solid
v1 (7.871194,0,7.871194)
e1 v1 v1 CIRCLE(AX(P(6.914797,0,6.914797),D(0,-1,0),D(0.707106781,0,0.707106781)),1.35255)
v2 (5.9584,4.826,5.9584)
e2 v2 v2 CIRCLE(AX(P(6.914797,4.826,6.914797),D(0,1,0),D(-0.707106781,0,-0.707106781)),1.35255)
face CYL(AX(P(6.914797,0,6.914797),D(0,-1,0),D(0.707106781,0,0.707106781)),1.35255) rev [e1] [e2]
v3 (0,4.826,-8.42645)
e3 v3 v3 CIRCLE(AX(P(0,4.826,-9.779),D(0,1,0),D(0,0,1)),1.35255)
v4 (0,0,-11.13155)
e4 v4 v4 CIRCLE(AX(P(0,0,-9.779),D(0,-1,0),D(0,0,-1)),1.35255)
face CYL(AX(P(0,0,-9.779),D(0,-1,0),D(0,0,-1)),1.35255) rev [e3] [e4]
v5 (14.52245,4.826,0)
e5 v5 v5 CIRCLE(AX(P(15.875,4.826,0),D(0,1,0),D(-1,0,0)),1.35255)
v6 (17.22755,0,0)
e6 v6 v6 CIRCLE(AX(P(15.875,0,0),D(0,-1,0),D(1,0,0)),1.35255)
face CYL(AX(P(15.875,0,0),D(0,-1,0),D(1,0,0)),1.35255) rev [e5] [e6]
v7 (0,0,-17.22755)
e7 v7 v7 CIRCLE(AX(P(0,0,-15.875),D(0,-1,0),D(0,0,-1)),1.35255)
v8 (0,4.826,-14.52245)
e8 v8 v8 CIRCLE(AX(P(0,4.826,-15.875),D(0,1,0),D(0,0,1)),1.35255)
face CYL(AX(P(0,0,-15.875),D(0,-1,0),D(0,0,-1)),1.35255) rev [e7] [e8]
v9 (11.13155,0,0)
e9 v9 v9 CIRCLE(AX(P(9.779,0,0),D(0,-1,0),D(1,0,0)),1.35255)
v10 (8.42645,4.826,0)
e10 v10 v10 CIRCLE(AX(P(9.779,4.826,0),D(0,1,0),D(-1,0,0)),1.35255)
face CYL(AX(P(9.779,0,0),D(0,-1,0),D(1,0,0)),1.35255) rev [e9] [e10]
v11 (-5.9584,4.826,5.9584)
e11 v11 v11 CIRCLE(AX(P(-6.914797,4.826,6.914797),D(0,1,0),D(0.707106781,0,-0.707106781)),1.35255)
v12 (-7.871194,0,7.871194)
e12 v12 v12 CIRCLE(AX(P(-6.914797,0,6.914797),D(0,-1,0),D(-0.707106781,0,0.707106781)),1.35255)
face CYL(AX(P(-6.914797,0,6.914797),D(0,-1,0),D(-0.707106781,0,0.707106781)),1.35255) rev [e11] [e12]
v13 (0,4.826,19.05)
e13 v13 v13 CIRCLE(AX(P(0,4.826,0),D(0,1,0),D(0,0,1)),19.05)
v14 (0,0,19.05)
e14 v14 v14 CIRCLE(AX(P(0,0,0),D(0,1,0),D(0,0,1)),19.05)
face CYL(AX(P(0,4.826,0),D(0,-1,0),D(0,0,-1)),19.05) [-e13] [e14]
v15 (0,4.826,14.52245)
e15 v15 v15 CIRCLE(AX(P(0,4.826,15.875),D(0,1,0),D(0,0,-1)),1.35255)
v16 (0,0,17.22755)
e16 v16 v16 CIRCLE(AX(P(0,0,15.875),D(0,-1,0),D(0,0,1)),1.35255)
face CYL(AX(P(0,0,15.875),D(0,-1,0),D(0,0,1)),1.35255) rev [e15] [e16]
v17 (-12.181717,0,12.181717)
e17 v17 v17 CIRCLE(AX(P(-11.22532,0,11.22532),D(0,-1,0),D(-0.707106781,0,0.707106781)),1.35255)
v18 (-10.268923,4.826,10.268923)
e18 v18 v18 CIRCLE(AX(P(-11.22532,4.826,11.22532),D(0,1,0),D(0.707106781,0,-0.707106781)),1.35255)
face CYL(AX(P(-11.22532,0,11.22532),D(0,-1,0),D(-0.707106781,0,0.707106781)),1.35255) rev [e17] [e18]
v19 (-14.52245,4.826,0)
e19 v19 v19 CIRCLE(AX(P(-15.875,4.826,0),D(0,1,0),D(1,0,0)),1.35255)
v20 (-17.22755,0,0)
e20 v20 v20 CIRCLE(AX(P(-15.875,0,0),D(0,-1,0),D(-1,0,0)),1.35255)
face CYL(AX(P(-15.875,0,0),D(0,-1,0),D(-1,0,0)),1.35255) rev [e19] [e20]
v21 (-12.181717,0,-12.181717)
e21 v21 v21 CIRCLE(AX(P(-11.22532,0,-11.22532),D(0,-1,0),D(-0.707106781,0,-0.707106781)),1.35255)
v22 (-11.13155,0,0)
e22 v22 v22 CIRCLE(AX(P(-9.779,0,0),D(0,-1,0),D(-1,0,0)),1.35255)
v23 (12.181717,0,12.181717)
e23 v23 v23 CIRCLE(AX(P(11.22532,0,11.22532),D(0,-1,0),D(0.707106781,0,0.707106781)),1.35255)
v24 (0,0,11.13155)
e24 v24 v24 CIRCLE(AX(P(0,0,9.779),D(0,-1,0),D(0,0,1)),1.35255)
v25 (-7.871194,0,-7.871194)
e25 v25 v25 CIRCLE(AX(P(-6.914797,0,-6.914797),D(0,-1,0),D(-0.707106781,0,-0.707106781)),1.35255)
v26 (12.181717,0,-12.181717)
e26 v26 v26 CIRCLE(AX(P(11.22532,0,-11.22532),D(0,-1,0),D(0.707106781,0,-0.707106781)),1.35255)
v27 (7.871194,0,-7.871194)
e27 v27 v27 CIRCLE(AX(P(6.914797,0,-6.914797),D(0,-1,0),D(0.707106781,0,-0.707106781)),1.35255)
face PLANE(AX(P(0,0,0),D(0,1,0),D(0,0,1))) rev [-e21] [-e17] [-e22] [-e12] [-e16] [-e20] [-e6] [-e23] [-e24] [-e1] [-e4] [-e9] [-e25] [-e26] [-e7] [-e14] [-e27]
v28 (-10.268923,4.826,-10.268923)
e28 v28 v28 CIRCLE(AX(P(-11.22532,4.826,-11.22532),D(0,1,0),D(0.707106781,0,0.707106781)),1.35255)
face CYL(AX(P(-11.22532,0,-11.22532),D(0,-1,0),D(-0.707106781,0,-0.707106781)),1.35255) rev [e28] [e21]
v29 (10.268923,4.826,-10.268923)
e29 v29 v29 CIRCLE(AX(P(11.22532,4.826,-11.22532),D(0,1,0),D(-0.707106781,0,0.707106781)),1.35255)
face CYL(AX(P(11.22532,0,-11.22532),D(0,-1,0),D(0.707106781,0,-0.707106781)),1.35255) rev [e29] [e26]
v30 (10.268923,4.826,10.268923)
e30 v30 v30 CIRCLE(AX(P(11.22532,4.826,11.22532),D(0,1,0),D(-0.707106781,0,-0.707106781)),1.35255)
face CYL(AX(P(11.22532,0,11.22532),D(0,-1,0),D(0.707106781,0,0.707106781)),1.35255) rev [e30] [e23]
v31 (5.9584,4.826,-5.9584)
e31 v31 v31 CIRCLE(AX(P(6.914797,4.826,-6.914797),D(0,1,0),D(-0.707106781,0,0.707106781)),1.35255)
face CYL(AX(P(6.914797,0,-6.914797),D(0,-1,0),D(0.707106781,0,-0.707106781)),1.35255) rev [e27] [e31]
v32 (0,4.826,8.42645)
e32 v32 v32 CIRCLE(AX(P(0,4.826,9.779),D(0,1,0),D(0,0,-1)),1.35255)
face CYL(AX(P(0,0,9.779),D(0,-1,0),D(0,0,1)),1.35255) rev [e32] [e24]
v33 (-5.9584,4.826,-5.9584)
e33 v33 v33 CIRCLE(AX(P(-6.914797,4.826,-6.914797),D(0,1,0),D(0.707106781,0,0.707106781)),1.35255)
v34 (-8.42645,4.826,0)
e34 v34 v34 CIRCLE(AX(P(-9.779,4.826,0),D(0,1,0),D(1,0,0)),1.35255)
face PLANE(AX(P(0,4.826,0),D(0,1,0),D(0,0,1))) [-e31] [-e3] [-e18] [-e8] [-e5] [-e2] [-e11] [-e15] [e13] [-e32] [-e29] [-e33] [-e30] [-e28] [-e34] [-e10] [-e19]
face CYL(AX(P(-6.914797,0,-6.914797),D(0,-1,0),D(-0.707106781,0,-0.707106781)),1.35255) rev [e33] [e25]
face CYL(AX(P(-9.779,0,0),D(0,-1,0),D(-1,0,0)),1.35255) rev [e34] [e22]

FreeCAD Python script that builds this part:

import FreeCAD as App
import Part
import Sketcher
Q = App.Units.Quantity

doc = App.newDocument("Part")
body = doc.addObject("PartDesign::Body", "Body")

# Sketch on XZ plane
sketch1 = doc.addObject("Sketcher::SketchObject", "Sketch")
body.addObject(sketch1)
sketch1.AttachmentSupport = (doc.XZ_Plane, [""])
sketch1.MapMode = "FlatFace"
sketch1.addGeometry(Part.Circle(App.Vector(0, 0, 0), App.Vector(0, 0, 1), 19), False)
sketch1.addConstraint(Sketcher.Constraint("Coincident", 0, 3, -1, 1))
sketch1.addConstraint(Sketcher.Constraint("Diameter", 0, Q("1.5 in")))
pad1 = doc.addObject("PartDesign::Pad", "Pad")
body.addObject(pad1)
pad1.Profile = sketch1
pad1.Length = Q("0.19 in")
pad1.Reversed = True

# Sketch on YZ plane
sketch2 = doc.addObject("Sketcher::SketchObject", "Sketch001")
body.addObject(sketch2)
sketch2.AttachmentSupport = (doc.YZ_Plane, [""])
sketch2.MapMode = "FlatFace"
sketch2.addGeometry(Part.LineSegment(App.Vector(5.9, -15.9, 0), App.Vector(0, -15.9, 0)), False)
sketch2.addGeometry(Part.LineSegment(App.Vector(0, -15.9, 0), App.Vector(0, -17.2, 0)), False)
sketch2.addGeometry(Part.LineSegment(App.Vector(0, -17.2, 0), App.Vector(5.1, -17.2, 0)), False)
sketch2.addGeometry(Part.LineSegment(App.Vector(5.1, -17.2, 0), App.Vector(5.9, -15.9, 0)), False)
sketch2.addGeometry(Part.LineSegment(App.Vector(0, -15.9, 0), App.Vector(5.9, -15.9, 0)), True)  # axis
sketch2.addConstraint(Sketcher.Constraint("Coincident", 0, 2, 1, 1))
sketch2.addConstraint(Sketcher.Constraint("Coincident", 1, 2, 2, 1))
sketch2.addConstraint(Sketcher.Constraint("Coincident", 2, 2, 3, 1))
sketch2.addConstraint(Sketcher.Constraint("Coincident", 3, 2, 0, 1))
sketch2.addConstraint(Sketcher.Constraint("Horizontal", 0))
sketch2.addConstraint(Sketcher.Constraint("Vertical", 1))
sketch2.addConstraint(Sketcher.Constraint("Horizontal", 2))
sketch2.addConstraint(Sketcher.Constraint("Horizontal", 4))
sketch2.addConstraint(Sketcher.Constraint("Coincident", 4, 1, 0, 2))
sketch2.addConstraint(Sketcher.Constraint("PointOnObject", 0, 2, -2))
sketch2.addConstraint(Sketcher.Constraint("Equal", 0, 4))
sketch2.addConstraint(Sketcher.Constraint("DistanceX", 2, 1, 2, 2, Q("0.2 in")))
sketch2.addConstraint(Sketcher.Constraint("Angle", 3, Q("59 deg")))
sketch2.addConstraint(Sketcher.Constraint("DistanceY", 0, 2, -1, 1, Q("0.625 in")))
sketch2.addConstraint(Sketcher.Constraint("DistanceY", 1, 2, 1, 1, Q("1.35255 mm")))
groove = doc.addObject("PartDesign::Groove", "Groove")
body.addObject(groove)
groove.Profile = sketch2
groove.ReferenceAxis = (sketch2, ["Axis0"])
groove.Angle = 360
doc.recompute()

linearpattern = doc.addObject("PartDesign::LinearPattern", "LinearPattern")
body.addObject(linearpattern)
linearpattern.Originals = [groove]
linearpattern.Direction = (doc.Z_Axis, [""])
linearpattern.Mode = "offset"
linearpattern.Offset = Q("0.24 in")
linearpattern.Occurrences = 2
body.Tip = linearpattern
doc.recompute()

polarpattern = doc.addObject("PartDesign::PolarPattern", "PolarPattern")
body.addObject(polarpattern)
polarpattern.Originals = [groove]
polarpattern.Axis = (doc.Y_Axis, [""])
polarpattern.Angle = 360
polarpattern.Occurrences = 8
body.Tip = polarpattern

# Sketch on an angled plane
sketch3 = doc.addObject("Sketcher::SketchObject", "Sketch002")
body.addObject(sketch3)
sketch3.Placement = App.Placement(App.Vector(-6.914797, 0, -6.914797), App.Rotation(App.Vector(-0.707106781, 0, -0.707106781), App.Vector(0, 0.999999999, 0), App.Vector(0.707106781, 0, -0.707106781), "ZXY"))
sketch3.addGeometry(Part.LineSegment(App.Vector(0, 5.9, 0), App.Vector(0, 0, 0)), False)
sketch3.addGeometry(Part.LineSegment(App.Vector(0, 0, 0), App.Vector(1.4, 0, 0)), False)
sketch3.addGeometry(Part.LineSegment(App.Vector(1.4, 0, 0), App.Vector(1.4, 5.1, 0)), False)
sketch3.addGeometry(Part.LineSegment(App.Vector(1.4, 5.1, 0), App.Vector(0, 5.9, 0)), False)
sketch3.addConstraint(Sketcher.Constraint("Coincident", 0, 2, 1, 1))
sketch3.addConstraint(Sketcher.Constraint("Coincident", 1, 2, 2, 1))
sketch3.addConstraint(Sketcher.Constraint("Coincident", 2, 2, 3, 1))
sketch3.addConstraint(Sketcher.Constraint("Coincident", 3, 2, 0, 1))
sketch3.addConstraint(Sketcher.Constraint("Vertical", 0))
sketch3.addConstraint(Sketcher.Constraint("Horizontal", 1))
sketch3.addConstraint(Sketcher.Constraint("Vertical", 2))
sketch3.addConstraint(Sketcher.Constraint("Coincident", 0, 2, -1, 1))
sketch3.addConstraint(Sketcher.Constraint("DistanceY", 2, 1, 2, 2, Q("0.2 in")))
sketch3.addConstraint(Sketcher.Constraint("Angle", 3, Q("149 deg")))
sketch3.addConstraint(Sketcher.Constraint("DistanceX", 1, 1, 1, 2, Q("1.35255 mm")))
groove2 = doc.addObject("PartDesign::Groove", "Groove001")
body.addObject(groove2)
groove2.Profile = sketch3
groove2.ReferenceAxis = (sketch3, ["V_Axis"])
groove2.Angle = 360

# Sketch on XY plane
sketch4 = doc.addObject("Sketcher::SketchObject", "Sketch003")
body.addObject(sketch4)
sketch4.AttachmentSupport = (doc.XY_Plane, [""])
sketch4.MapMode = "FlatFace"
sketch4.addGeometry(Part.LineSegment(App.Vector(-9.8, 5.9, 0), App.Vector(-9.8, 0, 0)), False)
sketch4.addGeometry(Part.LineSegment(App.Vector(-9.8, 0, 0), App.Vector(-11.1, 0, 0)), False)
sketch4.addGeometry(Part.LineSegment(App.Vector(-11.1, 0, 0), App.Vector(-11.1, 5.1, 0)), False)
sketch4.addGeometry(Part.LineSegment(App.Vector(-11.1, 5.1, 0), App.Vector(-9.8, 5.9, 0)), False)
sketch4.addGeometry(Part.LineSegment(App.Vector(-9.8, 0, 0), App.Vector(-9.8, 5.9, 0)), True)  # axis
sketch4.addConstraint(Sketcher.Constraint("Coincident", 0, 2, 1, 1))
sketch4.addConstraint(Sketcher.Constraint("Coincident", 1, 2, 2, 1))
sketch4.addConstraint(Sketcher.Constraint("Coincident", 2, 2, 3, 1))
sketch4.addConstraint(Sketcher.Constraint("Coincident", 3, 2, 0, 1))
sketch4.addConstraint(Sketcher.Constraint("Vertical", 0))
sketch4.addConstraint(Sketcher.Constraint("Horizontal", 1))
sketch4.addConstraint(Sketcher.Constraint("Vertical", 2))
sketch4.addConstraint(Sketcher.Constraint("Vertical", 4))
sketch4.addConstraint(Sketcher.Constraint("Coincident", 4, 1, 0, 2))
sketch4.addConstraint(Sketcher.Constraint("PointOnObject", 0, 2, -1))
sketch4.addConstraint(Sketcher.Constraint("Equal", 0, 4))
sketch4.addConstraint(Sketcher.Constraint("DistanceY", 2, 1, 2, 2, Q("0.2 in")))
sketch4.addConstraint(Sketcher.Constraint("Angle", 3, Q("31 deg")))
sketch4.addConstraint(Sketcher.Constraint("DistanceX", 0, 2, -1, 1, Q("0.385 in")))
sketch4.addConstraint(Sketcher.Constraint("DistanceX", 1, 2, 1, 1, Q("1.35255 mm")))
groove3 = doc.addObject("PartDesign::Groove", "Groove002")
body.addObject(groove3)
groove3.Profile = sketch4
groove3.ReferenceAxis = (sketch4, ["Axis0"])
groove3.Angle = 360

# Sketch on an angled plane
sketch5 = doc.addObject("Sketcher::SketchObject", "Sketch004")
body.addObject(sketch5)
sketch5.Placement = App.Placement(App.Vector(-6.914797, 0, 6.914797), App.Rotation(App.Vector(-0.707106781, 0, 0.707106781), App.Vector(0, 0.999999999, 0), App.Vector(-0.707106781, 0, -0.707106781), "ZXY"))
sketch5.addGeometry(Part.LineSegment(App.Vector(0, 5.9, 0), App.Vector(0, 0, 0)), False)
sketch5.addGeometry(Part.LineSegment(App.Vector(0, 0, 0), App.Vector(1.4, 0, 0)), False)
sketch5.addGeometry(Part.LineSegment(App.Vector(1.4, 0, 0), App.Vector(1.4, 5.1, 0)), False)
sketch5.addGeometry(Part.LineSegment(App.Vector(1.4, 5.1, 0), App.Vector(0, 5.9, 0)), False)
sketch5.addConstraint(Sketcher.Constraint("Coincident", 0, 2, 1, 1))
sketch5.addConstraint(Sketcher.Constraint("Coincident", 1, 2, 2, 1))
sketch5.addConstraint(Sketcher.Constraint("Coincident", 2, 2, 3, 1))
sketch5.addConstraint(Sketcher.Constraint("Coincident", 3, 2, 0, 1))
sketch5.addConstraint(Sketcher.Constraint("Vertical", 0))
sketch5.addConstraint(Sketcher.Constraint("Horizontal", 1))
sketch5.addConstraint(Sketcher.Constraint("Vertical", 2))
sketch5.addConstraint(Sketcher.Constraint("Coincident", 0, 2, -1, 1))
sketch5.addConstraint(Sketcher.Constraint("DistanceY", 2, 1, 2, 2, Q("0.2 in")))
sketch5.addConstraint(Sketcher.Constraint("Angle", 3, Q("149 deg")))
sketch5.addConstraint(Sketcher.Constraint("DistanceX", 1, 1, 1, 2, Q("1.35255 mm")))
groove4 = doc.addObject("PartDesign::Groove", "Groove003")
body.addObject(groove4)
groove4.Profile = sketch5
groove4.ReferenceAxis = (sketch5, ["V_Axis"])
groove4.Angle = 360

# Sketch on YZ plane
sketch6 = doc.addObject("Sketcher::SketchObject", "Sketch005")
body.addObject(sketch6)
sketch6.AttachmentSupport = (doc.YZ_Plane, [""])
sketch6.MapMode = "FlatFace"
sketch6.addGeometry(Part.LineSegment(App.Vector(5.9, 9.8, 0), App.Vector(0, 9.8, 0)), False)
sketch6.addGeometry(Part.LineSegment(App.Vector(0, 9.8, 0), App.Vector(0, 11.1, 0)), False)
sketch6.addGeometry(Part.LineSegment(App.Vector(0, 11.1, 0), App.Vector(5.1, 11.1, 0)), False)
sketch6.addGeometry(Part.LineSegment(App.Vector(5.1, 11.1, 0), App.Vector(5.9, 9.8, 0)), False)
sketch6.addGeometry(Part.LineSegment(App.Vector(0, 9.8, 0), App.Vector(5.9, 9.8, 0)), True)  # axis
sketch6.addConstraint(Sketcher.Constraint("Coincident", 0, 2, 1, 1))
sketch6.addConstraint(Sketcher.Constraint("Coincident", 1, 2, 2, 1))
sketch6.addConstraint(Sketcher.Constraint("Coincident", 2, 2, 3, 1))
sketch6.addConstraint(Sketcher.Constraint("Coincident", 3, 2, 0, 1))
sketch6.addConstraint(Sketcher.Constraint("Horizontal", 0))
sketch6.addConstraint(Sketcher.Constraint("Vertical", 1))
sketch6.addConstraint(Sketcher.Constraint("Horizontal", 2))
sketch6.addConstraint(Sketcher.Constraint("Horizontal", 4))
sketch6.addConstraint(Sketcher.Constraint("Coincident", 4, 1, 0, 2))
sketch6.addConstraint(Sketcher.Constraint("PointOnObject", 0, 2, -2))
sketch6.addConstraint(Sketcher.Constraint("Equal", 0, 4))
sketch6.addConstraint(Sketcher.Constraint("DistanceX", 2, 1, 2, 2, Q("0.2 in")))
sketch6.addConstraint(Sketcher.Constraint("Angle", 3, Q("-59 deg")))
sketch6.addConstraint(Sketcher.Constraint("DistanceY", -1, 1, 0, 2, Q("0.385 in")))
sketch6.addConstraint(Sketcher.Constraint("DistanceY", 1, 1, 1, 2, Q("1.35255 mm")))
groove5 = doc.addObject("PartDesign::Groove", "Groove004")
body.addObject(groove5)
groove5.Profile = sketch6
groove5.ReferenceAxis = (sketch6, ["Axis0"])
groove5.Angle = 360

# Sketch on an angled plane
sketch7 = doc.addObject("Sketcher::SketchObject", "Sketch006")
body.addObject(sketch7)
sketch7.Placement = App.Placement(App.Vector(6.914797, 0, 6.914797), App.Rotation(App.Vector(0.707106781, 0, 0.707106781), App.Vector(0, 0.999999999, 0), App.Vector(-0.707106781, 0, 0.707106781), "ZXY"))
sketch7.addGeometry(Part.LineSegment(App.Vector(0, 5.9, 0), App.Vector(0, 0, 0)), False)
sketch7.addGeometry(Part.LineSegment(App.Vector(0, 0, 0), App.Vector(1.4, 0, 0)), False)
sketch7.addGeometry(Part.LineSegment(App.Vector(1.4, 0, 0), App.Vector(1.4, 5.1, 0)), False)
sketch7.addGeometry(Part.LineSegment(App.Vector(1.4, 5.1, 0), App.Vector(0, 5.9, 0)), False)
sketch7.addConstraint(Sketcher.Constraint("Coincident", 0, 2, 1, 1))
sketch7.addConstraint(Sketcher.Constraint("Coincident", 1, 2, 2, 1))
sketch7.addConstraint(Sketcher.Constraint("Coincident", 2, 2, 3, 1))
sketch7.addConstraint(Sketcher.Constraint("Coincident", 3, 2, 0, 1))
sketch7.addConstraint(Sketcher.Constraint("Vertical", 0))
sketch7.addConstraint(Sketcher.Constraint("Horizontal", 1))
sketch7.addConstraint(Sketcher.Constraint("Vertical", 2))
sketch7.addConstraint(Sketcher.Constraint("Coincident", 0, 2, -1, 1))
sketch7.addConstraint(Sketcher.Constraint("DistanceY", 2, 1, 2, 2, Q("0.2 in")))
sketch7.addConstraint(Sketcher.Constraint("Angle", 3, Q("149 deg")))
sketch7.addConstraint(Sketcher.Constraint("DistanceX", 1, 1, 1, 2, Q("1.35255 mm")))
groove6 = doc.addObject("PartDesign::Groove", "Groove005")
body.addObject(groove6)
groove6.Profile = sketch7
groove6.ReferenceAxis = (sketch7, ["V_Axis"])
groove6.Angle = 360

# Sketch on XY plane
sketch8 = doc.addObject("Sketcher::SketchObject", "Sketch007")
body.addObject(sketch8)
sketch8.AttachmentSupport = (doc.XY_Plane, [""])
sketch8.MapMode = "FlatFace"
sketch8.addGeometry(Part.LineSegment(App.Vector(9.8, 5.9, 0), App.Vector(9.8, 0, 0)), False)
sketch8.addGeometry(Part.LineSegment(App.Vector(9.8, 0, 0), App.Vector(11.1, 0, 0)), False)
sketch8.addGeometry(Part.LineSegment(App.Vector(11.1, 0, 0), App.Vector(11.1, 5.1, 0)), False)
sketch8.addGeometry(Part.LineSegment(App.Vector(11.1, 5.1, 0), App.Vector(9.8, 5.9, 0)), False)
sketch8.addGeometry(Part.LineSegment(App.Vector(9.8, 0, 0), App.Vector(9.8, 5.9, 0)), True)  # axis
sketch8.addConstraint(Sketcher.Constraint("Coincident", 0, 2, 1, 1))
sketch8.addConstraint(Sketcher.Constraint("Coincident", 1, 2, 2, 1))
sketch8.addConstraint(Sketcher.Constraint("Coincident", 2, 2, 3, 1))
sketch8.addConstraint(Sketcher.Constraint("Coincident", 3, 2, 0, 1))
sketch8.addConstraint(Sketcher.Constraint("Vertical", 0))
sketch8.addConstraint(Sketcher.Constraint("Horizontal", 1))
sketch8.addConstraint(Sketcher.Constraint("Vertical", 2))
sketch8.addConstraint(Sketcher.Constraint("Vertical", 4))
sketch8.addConstraint(Sketcher.Constraint("Coincident", 4, 1, 0, 2))
sketch8.addConstraint(Sketcher.Constraint("PointOnObject", 0, 2, -1))
sketch8.addConstraint(Sketcher.Constraint("Equal", 0, 4))
sketch8.addConstraint(Sketcher.Constraint("DistanceY", 2, 1, 2, 2, Q("0.2 in")))
sketch8.addConstraint(Sketcher.Constraint("Angle", 3, Q("149 deg")))
sketch8.addConstraint(Sketcher.Constraint("DistanceX", -1, 1, 0, 2, Q("0.385 in")))
sketch8.addConstraint(Sketcher.Constraint("DistanceX", 1, 1, 1, 2, Q("1.35255 mm")))
groove7 = doc.addObject("PartDesign::Groove", "Groove006")
body.addObject(groove7)
groove7.Profile = sketch8
groove7.ReferenceAxis = (sketch8, ["Axis0"])
groove7.Angle = 360

# Sketch on an angled plane
sketch9 = doc.addObject("Sketcher::SketchObject", "Sketch008")
body.addObject(sketch9)
sketch9.Placement = App.Placement(App.Vector(6.914797, 0, -6.914797), App.Rotation(App.Vector(0.707106781, 0, -0.707106781), App.Vector(0, 0.999999999, 0), App.Vector(0.707106781, 0, 0.707106781), "ZXY"))
sketch9.addGeometry(Part.LineSegment(App.Vector(0, 5.9, 0), App.Vector(0, 0, 0)), False)
sketch9.addGeometry(Part.LineSegment(App.Vector(0, 0, 0), App.Vector(1.4, 0, 0)), False)
sketch9.addGeometry(Part.LineSegment(App.Vector(1.4, 0, 0), App.Vector(1.4, 5.1, 0)), False)
sketch9.addGeometry(Part.LineSegment(App.Vector(1.4, 5.1, 0), App.Vector(0, 5.9, 0)), False)
sketch9.addConstraint(Sketcher.Constraint("Coincident", 0, 2, 1, 1))
sketch9.addConstraint(Sketcher.Constraint("Coincident", 1, 2, 2, 1))
sketch9.addConstraint(Sketcher.Constraint("Coincident", 2, 2, 3, 1))
sketch9.addConstraint(Sketcher.Constraint("Coincident", 3, 2, 0, 1))
sketch9.addConstraint(Sketcher.Constraint("Vertical", 0))
sketch9.addConstraint(Sketcher.Constraint("Horizontal", 1))
sketch9.addConstraint(Sketcher.Constraint("Vertical", 2))
sketch9.addConstraint(Sketcher.Constraint("Coincident", 0, 2, -1, 1))
sketch9.addConstraint(Sketcher.Constraint("DistanceY", 2, 1, 2, 2, Q("0.2 in")))
sketch9.addConstraint(Sketcher.Constraint("Angle", 3, Q("149 deg")))
sketch9.addConstraint(Sketcher.Constraint("DistanceX", 1, 1, 1, 2, Q("1.35255 mm")))
groove8 = doc.addObject("PartDesign::Groove", "Groove007")
body.addObject(groove8)
groove8.Profile = sketch9
groove8.ReferenceAxis = (sketch9, ["V_Axis"])
groove8.Angle = 360

doc.recompute()
